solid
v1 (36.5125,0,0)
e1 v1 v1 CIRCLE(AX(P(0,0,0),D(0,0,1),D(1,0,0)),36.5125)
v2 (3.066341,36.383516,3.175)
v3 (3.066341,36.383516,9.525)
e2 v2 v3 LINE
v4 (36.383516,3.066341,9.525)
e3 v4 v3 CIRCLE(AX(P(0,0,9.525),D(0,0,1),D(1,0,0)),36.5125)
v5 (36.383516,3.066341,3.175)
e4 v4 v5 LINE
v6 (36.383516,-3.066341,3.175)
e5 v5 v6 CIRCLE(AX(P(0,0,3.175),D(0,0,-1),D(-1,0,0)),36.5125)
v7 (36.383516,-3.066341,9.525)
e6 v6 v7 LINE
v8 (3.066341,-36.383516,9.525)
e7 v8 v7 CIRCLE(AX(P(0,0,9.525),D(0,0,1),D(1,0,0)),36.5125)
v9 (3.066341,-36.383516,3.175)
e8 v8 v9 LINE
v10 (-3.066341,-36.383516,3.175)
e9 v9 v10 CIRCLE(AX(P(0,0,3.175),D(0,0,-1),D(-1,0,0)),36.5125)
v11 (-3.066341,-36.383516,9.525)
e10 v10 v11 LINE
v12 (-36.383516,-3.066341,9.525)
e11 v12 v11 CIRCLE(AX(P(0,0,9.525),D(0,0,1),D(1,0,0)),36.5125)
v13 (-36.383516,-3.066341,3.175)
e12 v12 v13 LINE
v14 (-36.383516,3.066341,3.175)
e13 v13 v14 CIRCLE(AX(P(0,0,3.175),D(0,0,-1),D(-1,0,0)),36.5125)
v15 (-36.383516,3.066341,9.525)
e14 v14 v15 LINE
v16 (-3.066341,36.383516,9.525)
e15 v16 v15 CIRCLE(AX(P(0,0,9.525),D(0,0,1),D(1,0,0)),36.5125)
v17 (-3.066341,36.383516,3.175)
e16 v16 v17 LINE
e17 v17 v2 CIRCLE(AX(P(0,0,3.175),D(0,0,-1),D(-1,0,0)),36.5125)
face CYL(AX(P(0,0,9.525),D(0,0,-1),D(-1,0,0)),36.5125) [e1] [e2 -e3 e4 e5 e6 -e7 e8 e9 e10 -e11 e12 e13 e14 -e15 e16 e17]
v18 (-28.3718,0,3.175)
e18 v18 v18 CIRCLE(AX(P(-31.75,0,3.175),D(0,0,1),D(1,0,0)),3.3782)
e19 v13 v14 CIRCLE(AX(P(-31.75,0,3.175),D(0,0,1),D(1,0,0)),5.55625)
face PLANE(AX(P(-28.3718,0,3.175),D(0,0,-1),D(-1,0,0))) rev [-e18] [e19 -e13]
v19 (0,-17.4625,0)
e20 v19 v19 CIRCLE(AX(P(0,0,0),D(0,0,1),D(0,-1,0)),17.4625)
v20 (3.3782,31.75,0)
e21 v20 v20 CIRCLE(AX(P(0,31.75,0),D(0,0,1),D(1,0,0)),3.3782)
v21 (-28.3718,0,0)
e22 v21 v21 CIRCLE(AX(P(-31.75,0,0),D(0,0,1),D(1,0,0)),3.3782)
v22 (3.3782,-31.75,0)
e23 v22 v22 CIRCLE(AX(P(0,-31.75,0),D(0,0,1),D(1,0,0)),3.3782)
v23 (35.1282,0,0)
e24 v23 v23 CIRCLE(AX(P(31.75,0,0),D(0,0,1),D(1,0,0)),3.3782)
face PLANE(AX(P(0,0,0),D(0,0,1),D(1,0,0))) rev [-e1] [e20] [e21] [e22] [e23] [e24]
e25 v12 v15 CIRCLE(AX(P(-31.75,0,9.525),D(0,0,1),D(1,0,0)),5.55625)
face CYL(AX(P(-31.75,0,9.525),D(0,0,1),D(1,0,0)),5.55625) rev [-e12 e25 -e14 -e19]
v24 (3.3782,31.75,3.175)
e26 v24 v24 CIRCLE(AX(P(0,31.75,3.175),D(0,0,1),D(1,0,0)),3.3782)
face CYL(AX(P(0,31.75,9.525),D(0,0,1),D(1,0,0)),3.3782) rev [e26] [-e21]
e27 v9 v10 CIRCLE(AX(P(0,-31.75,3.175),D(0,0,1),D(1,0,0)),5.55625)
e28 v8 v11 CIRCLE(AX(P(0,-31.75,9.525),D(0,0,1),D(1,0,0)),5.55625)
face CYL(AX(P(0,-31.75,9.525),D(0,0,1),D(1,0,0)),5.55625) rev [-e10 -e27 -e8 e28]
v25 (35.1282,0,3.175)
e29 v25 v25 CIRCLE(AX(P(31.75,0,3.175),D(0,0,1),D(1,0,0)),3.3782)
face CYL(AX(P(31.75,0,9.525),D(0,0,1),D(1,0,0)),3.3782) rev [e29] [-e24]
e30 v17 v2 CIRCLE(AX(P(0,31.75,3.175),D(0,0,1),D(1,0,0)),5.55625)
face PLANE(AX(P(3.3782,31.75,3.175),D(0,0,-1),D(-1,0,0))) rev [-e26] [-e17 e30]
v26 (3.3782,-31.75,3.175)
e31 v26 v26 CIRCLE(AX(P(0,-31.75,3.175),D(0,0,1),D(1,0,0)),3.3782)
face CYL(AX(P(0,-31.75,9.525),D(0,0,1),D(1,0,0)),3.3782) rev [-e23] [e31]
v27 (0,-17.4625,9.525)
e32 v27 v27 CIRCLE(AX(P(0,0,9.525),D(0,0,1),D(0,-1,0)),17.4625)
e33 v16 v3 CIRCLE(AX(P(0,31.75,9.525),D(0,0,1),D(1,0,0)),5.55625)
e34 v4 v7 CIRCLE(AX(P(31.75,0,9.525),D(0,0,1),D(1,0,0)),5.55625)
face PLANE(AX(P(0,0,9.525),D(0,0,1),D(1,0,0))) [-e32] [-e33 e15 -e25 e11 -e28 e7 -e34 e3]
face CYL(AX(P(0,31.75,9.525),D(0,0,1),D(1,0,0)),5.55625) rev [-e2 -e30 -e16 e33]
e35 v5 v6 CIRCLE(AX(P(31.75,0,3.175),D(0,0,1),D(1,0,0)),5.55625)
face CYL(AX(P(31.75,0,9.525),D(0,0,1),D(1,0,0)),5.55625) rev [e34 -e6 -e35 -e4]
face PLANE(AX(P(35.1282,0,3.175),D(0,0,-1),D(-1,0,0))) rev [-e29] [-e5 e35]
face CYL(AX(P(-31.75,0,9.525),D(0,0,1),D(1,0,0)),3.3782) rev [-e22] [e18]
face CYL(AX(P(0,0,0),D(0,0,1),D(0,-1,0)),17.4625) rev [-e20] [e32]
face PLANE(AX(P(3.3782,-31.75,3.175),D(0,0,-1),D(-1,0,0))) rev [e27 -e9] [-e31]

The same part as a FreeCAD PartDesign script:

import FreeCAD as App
import Part
import Sketcher
Q = App.Units.Quantity

doc = App.newDocument("Part")
body = doc.addObject("PartDesign::Body", "Body")

sketch1 = body.newObject("Sketcher::SketchObject", "Sketch")
sketch1.AttachmentSupport = (doc.getObject("XY_Plane"), [""])
sketch1.MapMode = "FlatFace"
sketch1.addGeometry(Part.Circle(App.Vector(0, 0, 0), App.Vector(0, 0, 1), 37), False)
sketch1.addConstraint([
    Sketcher.Constraint("Coincident", 0, 3, -1, 1),
    Sketcher.Constraint("Diameter", 0, Q("2.875 in")),
])
pad1 = body.newObject("PartDesign::Pad", "Pad")
pad1.Profile = sketch1
pad1.Length = Q("0.375 in")

sketch2 = body.newObject("Sketcher::SketchObject", "Sketch001")
sketch2.AttachmentSupport = (doc.getObject("XY_Plane"), [""])
sketch2.MapMode = "FlatFace"
sketch2.AttachmentOffset = App.Placement(App.Vector(0, 0, 0.375 * 25.4), App.Rotation())
sketch2.addGeometry(Part.Circle(App.Vector(0, 0, 0), App.Vector(0, 0, 1), 17), False)
sketch2.addConstraint([
    Sketcher.Constraint("Coincident", 0, 3, -1, 1),
    Sketcher.Constraint("Diameter", 0, Q("1.375 in")),
])
pocket1 = body.newObject("PartDesign::Pocket", "Pocket")
pocket1.Profile = sketch2
pocket1.Type = "ThroughAll"

sketch3 = body.newObject("Sketcher::SketchObject", "Sketch002")
sketch3.AttachmentSupport = (doc.getObject("XY_Plane"), [""])
sketch3.MapMode = "FlatFace"
sketch3.AttachmentOffset = App.Placement(App.Vector(0, 0, 0.375 * 25.4), App.Rotation())
sketch3.addGeometry([
    Part.Circle(App.Vector(0, 31.8, 0), App.Vector(0, 0, 1), 3.4),
    Part.Circle(App.Vector(-31.8, 0, 0), App.Vector(0, 0, 1), 3.4),
    Part.Circle(App.Vector(31.8, 0, 0), App.Vector(0, 0, 1), 3.4),
    Part.Circle(App.Vector(0, -31.8, 0), App.Vector(0, 0, 1), 3.4),
], False)
sketch3.addConstraint([
    Sketcher.Constraint("Equal", 0, 1),
    Sketcher.Constraint("Equal", 1, 2),
    Sketcher.Constraint("Equal", 2, 3),
    Sketcher.Constraint("Symmetric", 1, 3, 2, 3, -1, 1),
    Sketcher.Constraint("Symmetric", 0, 3, 3, 3, -1, 1),
    Sketcher.Constraint("PointOnObject", 0, 3, -2),
    Sketcher.Constraint("PointOnObject", 1, 3, -1),
    Sketcher.Constraint("Diameter", 0, Q("0.266 in")),
    Sketcher.Constraint("DistanceX", 1, 3, 2, 3, Q("2.5 in")),
    Sketcher.Constraint("DistanceY", 3, 3, 0, 3, Q("2.5 in")),
])
doc.recompute()
hole = body.newObject("PartDesign::Hole", "Hole")
hole.Profile = sketch3
hole.ThreadType = "None"
hole.Diameter = Q("0.266 in")
hole.DepthType = "ThroughAll"
hole.HoleCutType = "Counterbore"
hole.HoleCutDiameter = Q("0.4375 in")
hole.HoleCutDepth = Q("0.25 in")

doc.recompute()
